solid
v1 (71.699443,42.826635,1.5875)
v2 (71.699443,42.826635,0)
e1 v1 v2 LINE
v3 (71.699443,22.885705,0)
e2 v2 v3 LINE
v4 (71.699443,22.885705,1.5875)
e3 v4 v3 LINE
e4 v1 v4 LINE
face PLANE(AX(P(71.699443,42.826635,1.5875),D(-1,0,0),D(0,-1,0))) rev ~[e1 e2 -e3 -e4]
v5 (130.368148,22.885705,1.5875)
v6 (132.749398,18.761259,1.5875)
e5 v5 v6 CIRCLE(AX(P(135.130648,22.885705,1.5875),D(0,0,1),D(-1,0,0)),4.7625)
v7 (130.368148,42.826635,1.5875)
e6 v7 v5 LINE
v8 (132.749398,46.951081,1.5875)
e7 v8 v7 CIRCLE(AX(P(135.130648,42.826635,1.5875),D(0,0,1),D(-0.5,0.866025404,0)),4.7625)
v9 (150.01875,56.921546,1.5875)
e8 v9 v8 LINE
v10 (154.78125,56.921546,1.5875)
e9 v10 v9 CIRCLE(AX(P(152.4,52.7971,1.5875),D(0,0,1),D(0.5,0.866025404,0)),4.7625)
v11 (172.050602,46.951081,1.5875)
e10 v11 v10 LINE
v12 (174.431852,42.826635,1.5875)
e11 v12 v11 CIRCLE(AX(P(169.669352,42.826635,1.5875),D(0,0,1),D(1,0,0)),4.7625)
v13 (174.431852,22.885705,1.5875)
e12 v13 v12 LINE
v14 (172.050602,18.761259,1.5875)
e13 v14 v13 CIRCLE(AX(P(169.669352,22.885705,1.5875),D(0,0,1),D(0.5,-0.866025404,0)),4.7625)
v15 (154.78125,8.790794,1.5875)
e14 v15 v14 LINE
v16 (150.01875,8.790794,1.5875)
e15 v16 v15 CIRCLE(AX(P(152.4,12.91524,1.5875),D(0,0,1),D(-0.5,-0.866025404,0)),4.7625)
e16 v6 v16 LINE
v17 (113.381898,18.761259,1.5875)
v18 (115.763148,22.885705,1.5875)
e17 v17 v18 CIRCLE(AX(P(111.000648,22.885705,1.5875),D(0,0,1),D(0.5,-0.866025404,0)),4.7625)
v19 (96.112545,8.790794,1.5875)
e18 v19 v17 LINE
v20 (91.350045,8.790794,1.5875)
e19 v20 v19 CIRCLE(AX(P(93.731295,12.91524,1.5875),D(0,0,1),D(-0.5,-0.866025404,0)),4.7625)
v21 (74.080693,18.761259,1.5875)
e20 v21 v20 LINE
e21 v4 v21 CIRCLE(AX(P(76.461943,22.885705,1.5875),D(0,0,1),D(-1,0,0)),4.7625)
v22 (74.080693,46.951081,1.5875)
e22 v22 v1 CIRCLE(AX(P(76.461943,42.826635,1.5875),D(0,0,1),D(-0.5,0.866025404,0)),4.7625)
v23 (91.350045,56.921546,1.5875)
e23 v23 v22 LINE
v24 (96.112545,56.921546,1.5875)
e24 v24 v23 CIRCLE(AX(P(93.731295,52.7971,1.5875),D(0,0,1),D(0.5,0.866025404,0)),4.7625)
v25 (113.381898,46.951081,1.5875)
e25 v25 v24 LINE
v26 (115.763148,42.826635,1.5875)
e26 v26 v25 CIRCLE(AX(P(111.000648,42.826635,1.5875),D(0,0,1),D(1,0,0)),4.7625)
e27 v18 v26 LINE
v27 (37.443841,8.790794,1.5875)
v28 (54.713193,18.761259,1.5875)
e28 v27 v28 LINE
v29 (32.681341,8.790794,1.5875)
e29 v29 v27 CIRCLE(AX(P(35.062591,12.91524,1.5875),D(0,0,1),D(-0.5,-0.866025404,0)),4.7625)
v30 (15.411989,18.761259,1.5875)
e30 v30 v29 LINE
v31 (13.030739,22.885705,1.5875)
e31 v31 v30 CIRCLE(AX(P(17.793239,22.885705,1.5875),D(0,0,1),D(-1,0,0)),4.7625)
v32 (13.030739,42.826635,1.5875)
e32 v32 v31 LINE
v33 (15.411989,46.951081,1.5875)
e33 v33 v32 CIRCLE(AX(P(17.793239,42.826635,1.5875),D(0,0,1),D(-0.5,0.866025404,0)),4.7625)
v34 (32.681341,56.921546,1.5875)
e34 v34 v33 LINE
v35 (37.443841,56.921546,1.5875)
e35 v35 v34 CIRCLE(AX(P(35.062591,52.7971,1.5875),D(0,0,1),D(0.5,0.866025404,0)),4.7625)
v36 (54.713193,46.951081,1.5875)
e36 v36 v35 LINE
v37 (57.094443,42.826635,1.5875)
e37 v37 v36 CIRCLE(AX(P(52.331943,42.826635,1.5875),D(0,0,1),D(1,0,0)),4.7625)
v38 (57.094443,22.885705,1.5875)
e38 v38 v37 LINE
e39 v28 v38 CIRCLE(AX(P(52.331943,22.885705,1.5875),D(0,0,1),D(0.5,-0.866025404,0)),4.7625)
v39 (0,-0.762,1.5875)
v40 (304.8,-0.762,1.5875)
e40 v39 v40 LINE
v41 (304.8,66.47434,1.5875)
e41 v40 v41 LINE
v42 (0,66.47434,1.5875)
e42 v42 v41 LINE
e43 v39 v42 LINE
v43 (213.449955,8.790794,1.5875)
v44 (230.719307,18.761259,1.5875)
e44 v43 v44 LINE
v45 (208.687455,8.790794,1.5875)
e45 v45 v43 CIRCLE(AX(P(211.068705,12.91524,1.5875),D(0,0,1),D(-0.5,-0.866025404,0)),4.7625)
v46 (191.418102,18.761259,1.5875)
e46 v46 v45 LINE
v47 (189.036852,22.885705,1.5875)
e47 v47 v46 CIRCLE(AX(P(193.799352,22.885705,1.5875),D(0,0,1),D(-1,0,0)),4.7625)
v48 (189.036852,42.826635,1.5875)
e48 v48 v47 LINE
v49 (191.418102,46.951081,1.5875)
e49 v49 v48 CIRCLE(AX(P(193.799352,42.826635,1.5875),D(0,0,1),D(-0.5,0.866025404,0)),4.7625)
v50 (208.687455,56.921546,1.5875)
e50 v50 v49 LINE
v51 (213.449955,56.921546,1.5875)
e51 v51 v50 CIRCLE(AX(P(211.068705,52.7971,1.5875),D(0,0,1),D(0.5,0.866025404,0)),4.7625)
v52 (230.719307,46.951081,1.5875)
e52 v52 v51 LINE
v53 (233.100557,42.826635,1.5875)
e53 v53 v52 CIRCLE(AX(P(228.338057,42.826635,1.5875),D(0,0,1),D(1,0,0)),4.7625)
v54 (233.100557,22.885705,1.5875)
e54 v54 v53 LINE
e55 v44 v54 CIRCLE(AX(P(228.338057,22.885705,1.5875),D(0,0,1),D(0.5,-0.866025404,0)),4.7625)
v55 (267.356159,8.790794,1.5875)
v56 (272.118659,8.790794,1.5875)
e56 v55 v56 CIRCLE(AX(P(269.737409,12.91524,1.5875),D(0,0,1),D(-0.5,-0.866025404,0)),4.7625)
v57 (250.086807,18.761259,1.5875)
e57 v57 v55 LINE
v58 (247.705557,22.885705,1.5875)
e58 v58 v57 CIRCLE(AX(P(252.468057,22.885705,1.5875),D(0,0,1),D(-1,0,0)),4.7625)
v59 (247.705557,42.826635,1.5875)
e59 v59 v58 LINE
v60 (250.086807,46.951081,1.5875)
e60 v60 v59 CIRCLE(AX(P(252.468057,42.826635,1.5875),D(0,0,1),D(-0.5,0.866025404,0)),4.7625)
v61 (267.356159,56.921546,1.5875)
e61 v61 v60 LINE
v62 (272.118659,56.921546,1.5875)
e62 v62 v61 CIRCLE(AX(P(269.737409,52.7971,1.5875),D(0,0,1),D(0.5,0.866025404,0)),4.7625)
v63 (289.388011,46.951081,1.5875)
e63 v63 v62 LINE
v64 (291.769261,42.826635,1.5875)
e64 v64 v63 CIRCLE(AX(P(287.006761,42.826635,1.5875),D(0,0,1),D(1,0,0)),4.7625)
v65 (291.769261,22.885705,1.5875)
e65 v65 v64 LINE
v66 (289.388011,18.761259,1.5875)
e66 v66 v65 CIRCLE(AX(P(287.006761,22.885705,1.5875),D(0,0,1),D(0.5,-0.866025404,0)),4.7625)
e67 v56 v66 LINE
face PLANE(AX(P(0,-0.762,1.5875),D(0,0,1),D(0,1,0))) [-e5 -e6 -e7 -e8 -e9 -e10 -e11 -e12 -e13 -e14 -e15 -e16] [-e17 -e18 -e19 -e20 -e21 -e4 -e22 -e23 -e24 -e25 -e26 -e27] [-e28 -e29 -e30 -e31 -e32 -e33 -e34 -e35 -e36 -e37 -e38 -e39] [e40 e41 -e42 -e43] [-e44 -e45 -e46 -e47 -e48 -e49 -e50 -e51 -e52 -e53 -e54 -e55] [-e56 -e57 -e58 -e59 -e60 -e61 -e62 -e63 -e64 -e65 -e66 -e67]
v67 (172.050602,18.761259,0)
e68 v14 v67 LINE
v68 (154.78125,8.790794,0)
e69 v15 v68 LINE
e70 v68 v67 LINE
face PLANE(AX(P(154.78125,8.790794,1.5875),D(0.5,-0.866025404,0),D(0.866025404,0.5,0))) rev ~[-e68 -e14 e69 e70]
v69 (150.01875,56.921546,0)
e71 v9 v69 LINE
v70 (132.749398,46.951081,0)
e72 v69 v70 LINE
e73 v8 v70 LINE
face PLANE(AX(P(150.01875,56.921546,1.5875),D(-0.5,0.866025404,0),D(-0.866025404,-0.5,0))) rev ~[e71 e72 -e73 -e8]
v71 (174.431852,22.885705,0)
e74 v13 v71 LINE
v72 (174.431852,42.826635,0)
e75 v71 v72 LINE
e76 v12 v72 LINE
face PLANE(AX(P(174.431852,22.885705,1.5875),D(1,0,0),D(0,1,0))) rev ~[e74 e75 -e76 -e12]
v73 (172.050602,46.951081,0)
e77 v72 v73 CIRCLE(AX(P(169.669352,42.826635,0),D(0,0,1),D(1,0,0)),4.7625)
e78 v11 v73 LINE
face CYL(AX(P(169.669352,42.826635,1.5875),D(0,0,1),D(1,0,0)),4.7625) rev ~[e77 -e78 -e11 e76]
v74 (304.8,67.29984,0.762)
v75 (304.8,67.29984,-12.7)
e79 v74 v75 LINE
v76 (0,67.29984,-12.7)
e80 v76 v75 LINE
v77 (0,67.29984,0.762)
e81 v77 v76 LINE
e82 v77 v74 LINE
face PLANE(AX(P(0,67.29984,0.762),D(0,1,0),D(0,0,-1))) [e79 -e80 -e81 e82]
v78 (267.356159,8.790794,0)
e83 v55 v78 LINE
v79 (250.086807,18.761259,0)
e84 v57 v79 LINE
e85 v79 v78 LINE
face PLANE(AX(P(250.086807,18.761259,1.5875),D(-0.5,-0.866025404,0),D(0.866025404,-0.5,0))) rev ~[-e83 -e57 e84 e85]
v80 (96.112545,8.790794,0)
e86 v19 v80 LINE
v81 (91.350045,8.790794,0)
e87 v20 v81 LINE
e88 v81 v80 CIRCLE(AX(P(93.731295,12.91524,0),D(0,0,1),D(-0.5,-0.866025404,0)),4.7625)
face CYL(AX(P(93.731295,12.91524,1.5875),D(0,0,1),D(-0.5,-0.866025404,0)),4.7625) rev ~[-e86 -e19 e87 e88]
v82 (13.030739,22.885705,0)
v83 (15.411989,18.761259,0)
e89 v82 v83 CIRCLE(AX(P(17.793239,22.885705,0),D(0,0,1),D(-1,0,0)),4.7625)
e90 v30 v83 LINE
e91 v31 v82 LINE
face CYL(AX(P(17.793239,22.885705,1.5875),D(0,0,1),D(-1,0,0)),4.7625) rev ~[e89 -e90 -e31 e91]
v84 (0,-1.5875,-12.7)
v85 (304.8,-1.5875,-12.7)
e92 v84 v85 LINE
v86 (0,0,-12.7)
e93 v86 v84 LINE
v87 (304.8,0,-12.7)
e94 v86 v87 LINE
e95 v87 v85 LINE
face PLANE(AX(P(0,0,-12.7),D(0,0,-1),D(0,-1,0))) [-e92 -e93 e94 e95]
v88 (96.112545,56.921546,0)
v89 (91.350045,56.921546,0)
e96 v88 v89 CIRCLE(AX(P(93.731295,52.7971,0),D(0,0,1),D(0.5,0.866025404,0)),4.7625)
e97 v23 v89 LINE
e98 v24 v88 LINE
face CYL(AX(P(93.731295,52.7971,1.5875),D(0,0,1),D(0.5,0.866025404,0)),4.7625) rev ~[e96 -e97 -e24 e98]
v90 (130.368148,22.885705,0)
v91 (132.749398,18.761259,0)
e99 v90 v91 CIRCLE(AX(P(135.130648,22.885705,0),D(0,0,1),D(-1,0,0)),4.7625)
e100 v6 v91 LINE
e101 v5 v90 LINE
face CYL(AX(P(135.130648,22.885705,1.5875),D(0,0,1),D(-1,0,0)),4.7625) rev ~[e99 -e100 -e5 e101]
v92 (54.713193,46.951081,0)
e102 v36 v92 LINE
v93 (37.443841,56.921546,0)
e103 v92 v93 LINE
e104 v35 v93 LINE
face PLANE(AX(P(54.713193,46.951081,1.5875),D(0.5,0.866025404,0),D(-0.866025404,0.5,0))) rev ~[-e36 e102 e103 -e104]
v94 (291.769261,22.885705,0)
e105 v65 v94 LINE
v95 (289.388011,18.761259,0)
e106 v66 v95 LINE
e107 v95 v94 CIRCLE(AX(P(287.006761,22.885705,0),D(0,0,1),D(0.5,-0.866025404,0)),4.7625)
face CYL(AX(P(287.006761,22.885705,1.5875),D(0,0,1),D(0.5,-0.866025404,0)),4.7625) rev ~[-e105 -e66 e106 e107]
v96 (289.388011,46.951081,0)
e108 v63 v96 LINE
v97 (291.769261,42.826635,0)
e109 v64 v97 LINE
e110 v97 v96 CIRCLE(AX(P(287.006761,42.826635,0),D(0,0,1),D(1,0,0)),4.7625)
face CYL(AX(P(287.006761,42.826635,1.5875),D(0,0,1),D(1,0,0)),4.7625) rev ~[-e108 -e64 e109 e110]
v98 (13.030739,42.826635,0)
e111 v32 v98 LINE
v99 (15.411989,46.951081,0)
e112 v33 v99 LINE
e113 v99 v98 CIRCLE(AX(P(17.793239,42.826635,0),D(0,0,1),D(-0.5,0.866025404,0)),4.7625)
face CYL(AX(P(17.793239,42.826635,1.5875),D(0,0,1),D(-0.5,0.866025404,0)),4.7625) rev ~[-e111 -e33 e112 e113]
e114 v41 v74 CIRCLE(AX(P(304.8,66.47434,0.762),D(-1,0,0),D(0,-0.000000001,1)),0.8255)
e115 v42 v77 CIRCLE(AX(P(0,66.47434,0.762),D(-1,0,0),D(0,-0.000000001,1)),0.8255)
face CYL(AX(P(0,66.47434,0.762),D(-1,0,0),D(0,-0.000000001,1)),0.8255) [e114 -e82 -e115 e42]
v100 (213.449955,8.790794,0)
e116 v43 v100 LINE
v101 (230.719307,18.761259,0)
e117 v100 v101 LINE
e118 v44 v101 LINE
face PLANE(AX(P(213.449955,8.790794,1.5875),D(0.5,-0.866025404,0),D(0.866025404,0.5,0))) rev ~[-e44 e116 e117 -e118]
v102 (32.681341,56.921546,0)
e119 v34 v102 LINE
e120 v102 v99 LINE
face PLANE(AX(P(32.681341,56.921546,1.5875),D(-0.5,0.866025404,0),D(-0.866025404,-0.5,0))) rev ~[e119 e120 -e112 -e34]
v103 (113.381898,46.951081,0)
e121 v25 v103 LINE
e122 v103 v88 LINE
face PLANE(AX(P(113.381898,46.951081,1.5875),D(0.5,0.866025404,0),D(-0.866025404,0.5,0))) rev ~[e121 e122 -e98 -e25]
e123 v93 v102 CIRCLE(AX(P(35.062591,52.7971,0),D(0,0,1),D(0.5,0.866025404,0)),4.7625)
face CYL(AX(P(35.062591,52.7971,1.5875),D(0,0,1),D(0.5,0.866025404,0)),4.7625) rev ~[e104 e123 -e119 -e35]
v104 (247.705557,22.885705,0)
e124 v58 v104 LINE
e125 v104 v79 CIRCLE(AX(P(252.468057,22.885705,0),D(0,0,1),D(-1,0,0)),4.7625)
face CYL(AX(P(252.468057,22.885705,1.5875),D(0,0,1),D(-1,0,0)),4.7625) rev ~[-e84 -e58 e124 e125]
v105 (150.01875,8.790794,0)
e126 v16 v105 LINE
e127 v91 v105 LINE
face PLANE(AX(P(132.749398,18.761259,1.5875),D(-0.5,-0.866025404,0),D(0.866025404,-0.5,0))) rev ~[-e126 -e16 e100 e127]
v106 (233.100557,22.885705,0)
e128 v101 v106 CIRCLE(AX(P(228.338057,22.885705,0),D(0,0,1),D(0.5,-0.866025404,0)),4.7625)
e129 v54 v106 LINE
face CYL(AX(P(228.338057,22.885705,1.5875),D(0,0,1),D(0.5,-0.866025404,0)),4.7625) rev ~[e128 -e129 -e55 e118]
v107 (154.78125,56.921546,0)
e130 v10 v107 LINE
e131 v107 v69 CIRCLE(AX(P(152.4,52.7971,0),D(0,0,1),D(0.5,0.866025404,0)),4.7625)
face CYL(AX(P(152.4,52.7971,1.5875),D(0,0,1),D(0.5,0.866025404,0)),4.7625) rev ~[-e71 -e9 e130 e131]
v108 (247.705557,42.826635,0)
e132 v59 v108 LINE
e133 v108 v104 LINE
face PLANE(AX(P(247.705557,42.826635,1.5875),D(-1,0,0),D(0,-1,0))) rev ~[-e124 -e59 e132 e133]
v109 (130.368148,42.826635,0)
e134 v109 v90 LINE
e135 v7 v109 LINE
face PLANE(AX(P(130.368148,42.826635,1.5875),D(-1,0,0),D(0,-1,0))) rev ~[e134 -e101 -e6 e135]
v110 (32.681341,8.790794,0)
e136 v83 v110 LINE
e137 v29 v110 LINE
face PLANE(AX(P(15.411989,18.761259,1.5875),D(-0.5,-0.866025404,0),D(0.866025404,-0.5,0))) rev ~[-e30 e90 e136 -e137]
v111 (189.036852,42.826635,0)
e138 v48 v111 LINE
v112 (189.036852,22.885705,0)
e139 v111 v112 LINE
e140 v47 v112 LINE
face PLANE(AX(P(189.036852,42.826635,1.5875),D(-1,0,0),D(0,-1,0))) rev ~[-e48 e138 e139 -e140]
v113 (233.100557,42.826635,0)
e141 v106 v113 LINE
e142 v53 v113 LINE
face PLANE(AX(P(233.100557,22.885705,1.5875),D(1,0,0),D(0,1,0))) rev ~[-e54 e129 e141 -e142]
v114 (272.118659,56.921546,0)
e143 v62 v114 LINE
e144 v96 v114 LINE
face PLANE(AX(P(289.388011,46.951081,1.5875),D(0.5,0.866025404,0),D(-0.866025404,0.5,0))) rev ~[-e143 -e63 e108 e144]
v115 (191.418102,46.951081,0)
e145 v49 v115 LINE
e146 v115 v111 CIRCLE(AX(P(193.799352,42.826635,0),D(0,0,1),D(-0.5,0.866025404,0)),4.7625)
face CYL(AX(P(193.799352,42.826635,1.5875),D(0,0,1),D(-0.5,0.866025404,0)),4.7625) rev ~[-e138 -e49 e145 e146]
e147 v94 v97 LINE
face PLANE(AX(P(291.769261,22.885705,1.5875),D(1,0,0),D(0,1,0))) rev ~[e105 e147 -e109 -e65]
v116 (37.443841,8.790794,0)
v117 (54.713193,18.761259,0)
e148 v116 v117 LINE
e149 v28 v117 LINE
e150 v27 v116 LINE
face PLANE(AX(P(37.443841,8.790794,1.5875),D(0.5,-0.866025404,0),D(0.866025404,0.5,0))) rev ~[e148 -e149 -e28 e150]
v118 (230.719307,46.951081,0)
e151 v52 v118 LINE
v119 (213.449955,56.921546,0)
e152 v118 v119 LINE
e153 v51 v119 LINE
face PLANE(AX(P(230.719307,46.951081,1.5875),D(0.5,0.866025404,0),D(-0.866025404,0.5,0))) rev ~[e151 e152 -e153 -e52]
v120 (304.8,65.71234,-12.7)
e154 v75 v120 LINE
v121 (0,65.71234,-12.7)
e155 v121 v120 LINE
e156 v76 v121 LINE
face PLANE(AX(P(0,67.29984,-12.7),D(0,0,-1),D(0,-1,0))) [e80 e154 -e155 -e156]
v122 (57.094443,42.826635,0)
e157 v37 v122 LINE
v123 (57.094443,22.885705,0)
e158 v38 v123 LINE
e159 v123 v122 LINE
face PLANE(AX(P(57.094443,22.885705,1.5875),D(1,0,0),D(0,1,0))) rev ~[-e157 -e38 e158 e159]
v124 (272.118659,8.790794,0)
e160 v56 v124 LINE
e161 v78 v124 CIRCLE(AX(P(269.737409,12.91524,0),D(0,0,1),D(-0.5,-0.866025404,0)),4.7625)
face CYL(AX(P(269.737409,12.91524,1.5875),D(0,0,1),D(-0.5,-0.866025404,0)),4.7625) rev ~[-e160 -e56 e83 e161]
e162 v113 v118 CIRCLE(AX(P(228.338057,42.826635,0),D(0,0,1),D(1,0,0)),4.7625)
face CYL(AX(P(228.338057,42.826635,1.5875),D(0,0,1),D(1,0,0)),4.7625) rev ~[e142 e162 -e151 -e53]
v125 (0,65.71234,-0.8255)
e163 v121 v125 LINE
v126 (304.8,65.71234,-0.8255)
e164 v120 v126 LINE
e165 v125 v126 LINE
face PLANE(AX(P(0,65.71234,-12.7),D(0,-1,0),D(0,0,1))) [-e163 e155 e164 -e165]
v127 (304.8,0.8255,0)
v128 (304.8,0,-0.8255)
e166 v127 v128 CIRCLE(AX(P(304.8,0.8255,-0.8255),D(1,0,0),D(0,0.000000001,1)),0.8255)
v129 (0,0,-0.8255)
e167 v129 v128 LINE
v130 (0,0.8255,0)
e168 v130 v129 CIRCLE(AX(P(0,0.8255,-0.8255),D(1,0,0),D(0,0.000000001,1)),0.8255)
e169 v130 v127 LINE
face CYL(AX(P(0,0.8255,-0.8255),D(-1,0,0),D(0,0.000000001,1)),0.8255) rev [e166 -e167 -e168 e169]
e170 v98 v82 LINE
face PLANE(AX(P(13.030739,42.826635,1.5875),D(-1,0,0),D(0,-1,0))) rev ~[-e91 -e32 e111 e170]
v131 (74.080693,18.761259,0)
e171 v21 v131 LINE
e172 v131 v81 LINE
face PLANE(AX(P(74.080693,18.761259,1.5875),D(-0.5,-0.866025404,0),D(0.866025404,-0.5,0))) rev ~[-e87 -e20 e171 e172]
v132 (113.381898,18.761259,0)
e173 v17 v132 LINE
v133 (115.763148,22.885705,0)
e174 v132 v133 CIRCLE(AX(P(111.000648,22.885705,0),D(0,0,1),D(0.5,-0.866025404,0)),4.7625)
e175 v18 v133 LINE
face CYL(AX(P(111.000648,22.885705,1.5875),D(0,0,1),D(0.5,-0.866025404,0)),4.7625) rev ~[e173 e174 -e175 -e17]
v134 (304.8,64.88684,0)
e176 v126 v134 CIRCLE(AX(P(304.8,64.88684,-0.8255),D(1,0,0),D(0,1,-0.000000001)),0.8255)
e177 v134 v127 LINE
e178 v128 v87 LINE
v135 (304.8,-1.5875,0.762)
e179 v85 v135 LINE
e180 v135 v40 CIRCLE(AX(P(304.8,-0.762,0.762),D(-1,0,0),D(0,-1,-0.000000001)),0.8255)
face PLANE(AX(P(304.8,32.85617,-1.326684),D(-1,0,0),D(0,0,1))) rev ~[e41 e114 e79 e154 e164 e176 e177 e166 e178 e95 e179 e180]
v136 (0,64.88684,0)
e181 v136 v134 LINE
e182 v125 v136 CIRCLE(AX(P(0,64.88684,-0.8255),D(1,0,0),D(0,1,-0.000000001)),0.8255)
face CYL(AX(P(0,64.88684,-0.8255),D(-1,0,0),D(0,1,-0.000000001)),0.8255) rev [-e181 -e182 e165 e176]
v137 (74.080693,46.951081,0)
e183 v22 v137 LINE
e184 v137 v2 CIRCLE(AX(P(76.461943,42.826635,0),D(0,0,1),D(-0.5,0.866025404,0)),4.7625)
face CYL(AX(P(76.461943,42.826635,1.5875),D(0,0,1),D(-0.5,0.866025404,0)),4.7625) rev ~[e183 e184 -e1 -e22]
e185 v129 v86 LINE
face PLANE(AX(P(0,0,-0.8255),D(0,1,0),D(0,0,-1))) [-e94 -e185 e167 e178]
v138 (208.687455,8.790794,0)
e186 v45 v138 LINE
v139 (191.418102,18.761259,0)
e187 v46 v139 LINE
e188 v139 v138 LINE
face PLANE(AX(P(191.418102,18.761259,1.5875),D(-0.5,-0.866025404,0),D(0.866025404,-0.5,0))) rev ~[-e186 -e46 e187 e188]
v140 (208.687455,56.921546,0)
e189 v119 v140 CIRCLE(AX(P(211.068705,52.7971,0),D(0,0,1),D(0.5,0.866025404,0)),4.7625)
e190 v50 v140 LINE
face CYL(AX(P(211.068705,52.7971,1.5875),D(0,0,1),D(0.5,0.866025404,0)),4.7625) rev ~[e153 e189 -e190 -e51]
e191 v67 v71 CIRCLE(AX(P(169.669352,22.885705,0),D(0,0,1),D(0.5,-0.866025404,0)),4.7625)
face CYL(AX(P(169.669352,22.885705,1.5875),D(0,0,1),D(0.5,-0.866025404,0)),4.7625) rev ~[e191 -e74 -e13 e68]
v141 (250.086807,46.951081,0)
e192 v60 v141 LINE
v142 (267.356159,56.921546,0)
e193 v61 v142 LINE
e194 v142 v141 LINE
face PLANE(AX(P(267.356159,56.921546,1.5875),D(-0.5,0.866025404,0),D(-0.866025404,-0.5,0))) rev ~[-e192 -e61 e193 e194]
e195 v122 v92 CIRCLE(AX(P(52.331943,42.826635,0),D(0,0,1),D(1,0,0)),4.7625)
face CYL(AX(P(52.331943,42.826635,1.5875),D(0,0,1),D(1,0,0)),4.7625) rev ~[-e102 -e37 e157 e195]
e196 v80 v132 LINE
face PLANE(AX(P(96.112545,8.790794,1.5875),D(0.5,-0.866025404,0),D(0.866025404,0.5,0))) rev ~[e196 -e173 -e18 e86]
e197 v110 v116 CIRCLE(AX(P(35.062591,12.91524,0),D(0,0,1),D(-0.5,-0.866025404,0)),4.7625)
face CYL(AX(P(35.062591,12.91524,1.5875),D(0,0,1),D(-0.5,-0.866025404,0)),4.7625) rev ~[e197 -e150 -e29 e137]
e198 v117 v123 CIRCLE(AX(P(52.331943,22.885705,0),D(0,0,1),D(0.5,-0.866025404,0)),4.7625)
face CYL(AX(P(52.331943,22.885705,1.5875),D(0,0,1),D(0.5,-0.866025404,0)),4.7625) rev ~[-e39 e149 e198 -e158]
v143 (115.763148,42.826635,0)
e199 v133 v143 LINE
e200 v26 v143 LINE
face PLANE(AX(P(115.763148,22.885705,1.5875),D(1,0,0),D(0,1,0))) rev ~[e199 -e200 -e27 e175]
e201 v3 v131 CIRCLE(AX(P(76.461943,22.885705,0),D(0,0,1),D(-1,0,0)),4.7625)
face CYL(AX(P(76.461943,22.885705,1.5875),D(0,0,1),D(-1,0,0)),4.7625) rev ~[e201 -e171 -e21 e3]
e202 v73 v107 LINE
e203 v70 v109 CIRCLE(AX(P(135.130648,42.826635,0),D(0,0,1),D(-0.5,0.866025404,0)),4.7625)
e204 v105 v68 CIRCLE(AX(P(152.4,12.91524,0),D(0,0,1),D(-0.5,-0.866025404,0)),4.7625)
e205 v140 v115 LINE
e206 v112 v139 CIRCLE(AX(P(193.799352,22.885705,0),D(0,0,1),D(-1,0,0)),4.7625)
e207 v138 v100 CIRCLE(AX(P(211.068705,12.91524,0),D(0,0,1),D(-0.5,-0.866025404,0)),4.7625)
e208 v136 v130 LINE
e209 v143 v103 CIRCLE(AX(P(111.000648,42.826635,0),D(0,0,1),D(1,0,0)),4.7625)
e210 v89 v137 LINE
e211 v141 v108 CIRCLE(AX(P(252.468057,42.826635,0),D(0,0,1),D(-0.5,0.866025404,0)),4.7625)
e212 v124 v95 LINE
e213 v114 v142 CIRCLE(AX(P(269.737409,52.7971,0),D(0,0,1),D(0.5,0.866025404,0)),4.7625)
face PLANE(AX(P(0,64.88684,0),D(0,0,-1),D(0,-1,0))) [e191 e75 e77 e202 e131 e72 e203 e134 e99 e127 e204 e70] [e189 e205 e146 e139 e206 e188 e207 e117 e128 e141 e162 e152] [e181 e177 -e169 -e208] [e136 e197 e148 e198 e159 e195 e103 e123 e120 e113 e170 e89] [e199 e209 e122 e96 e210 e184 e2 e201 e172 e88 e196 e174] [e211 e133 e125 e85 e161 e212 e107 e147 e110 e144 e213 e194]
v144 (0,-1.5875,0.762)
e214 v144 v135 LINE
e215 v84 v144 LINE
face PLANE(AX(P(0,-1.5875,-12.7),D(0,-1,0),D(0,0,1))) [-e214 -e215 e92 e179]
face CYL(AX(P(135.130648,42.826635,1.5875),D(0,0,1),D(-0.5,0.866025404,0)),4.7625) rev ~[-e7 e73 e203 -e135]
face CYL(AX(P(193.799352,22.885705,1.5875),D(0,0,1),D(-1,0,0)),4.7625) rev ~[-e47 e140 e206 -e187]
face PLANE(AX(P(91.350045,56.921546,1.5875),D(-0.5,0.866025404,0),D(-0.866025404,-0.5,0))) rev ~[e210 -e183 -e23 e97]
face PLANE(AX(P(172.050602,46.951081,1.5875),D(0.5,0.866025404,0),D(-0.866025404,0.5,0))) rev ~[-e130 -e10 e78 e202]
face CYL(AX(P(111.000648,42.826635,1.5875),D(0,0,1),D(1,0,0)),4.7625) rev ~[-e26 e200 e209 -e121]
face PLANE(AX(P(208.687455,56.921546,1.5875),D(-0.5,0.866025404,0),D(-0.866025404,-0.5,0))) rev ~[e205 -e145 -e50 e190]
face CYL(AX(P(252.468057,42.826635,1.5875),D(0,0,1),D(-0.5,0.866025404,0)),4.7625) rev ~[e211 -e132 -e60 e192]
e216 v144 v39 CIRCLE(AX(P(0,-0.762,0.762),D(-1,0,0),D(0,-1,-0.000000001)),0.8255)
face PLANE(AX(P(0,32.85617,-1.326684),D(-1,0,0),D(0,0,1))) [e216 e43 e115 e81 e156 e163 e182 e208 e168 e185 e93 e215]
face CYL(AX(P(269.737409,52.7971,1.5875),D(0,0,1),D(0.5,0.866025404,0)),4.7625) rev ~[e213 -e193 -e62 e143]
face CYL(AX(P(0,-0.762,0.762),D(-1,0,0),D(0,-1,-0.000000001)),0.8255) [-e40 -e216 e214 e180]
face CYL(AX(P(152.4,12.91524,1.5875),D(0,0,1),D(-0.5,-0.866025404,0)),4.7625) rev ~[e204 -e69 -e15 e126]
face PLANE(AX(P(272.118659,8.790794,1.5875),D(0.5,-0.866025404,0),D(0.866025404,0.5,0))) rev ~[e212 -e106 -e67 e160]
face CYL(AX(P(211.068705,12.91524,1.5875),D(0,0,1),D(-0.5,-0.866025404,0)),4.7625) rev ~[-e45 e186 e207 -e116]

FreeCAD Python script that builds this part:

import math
import FreeCAD as App
import Part
import Sketcher
Q = App.Units.Quantity

doc = App.newDocument("Part")
body = doc.addObject("PartDesign::Body", "Body")

# Sketch on YZ plane
sketch1 = body.newObject("Sketcher::SketchObject", "Sketch")
sketch1.AttachmentSupport = (doc.getObject("YZ_Plane"), [""])
sketch1.MapMode = "FlatFace"
sketch1.addGeometry([
    Part.LineSegment(App.Vector(67.3, -12.7, 0), App.Vector(67.3, 0.8, 0)),  # 0
    Part.ArcOfCircle(Part.Circle(App.Vector(66.5, 0.8, 0), App.Vector(0, 0, 1), 0.8), math.radians(0), math.radians(90)),  # 1
    Part.LineSegment(App.Vector(66.5, 1.6, 0), App.Vector(-0.8, 1.6, 0)),  # 2
    Part.ArcOfCircle(Part.Circle(App.Vector(-0.8, 0.8, 0), App.Vector(0, 0, 1), 0.8), math.radians(90), math.radians(180)),  # 3
    Part.LineSegment(App.Vector(-1.6, 0.8, 0), App.Vector(-1.6, -12.7, 0)),  # 4
    Part.LineSegment(App.Vector(-1.6, -12.7, 0), App.Vector(0, -12.7, 0)),  # 5
    Part.LineSegment(App.Vector(0, -12.7, 0), App.Vector(0, -0.8, 0)),  # 6
    Part.ArcOfCircle(Part.Circle(App.Vector(0.8, -0.8, 0), App.Vector(0, 0, 1), 0.8), math.radians(90), math.radians(180)),  # 7
    Part.LineSegment(App.Vector(0.8, 0, 0), App.Vector(64.9, 0, 0)),  # 8
    Part.ArcOfCircle(Part.Circle(App.Vector(64.9, -0.8, 0), App.Vector(0, 0, 1), 0.8), math.radians(0), math.radians(90)),  # 9
    Part.LineSegment(App.Vector(65.7, -0.8, 0), App.Vector(65.7, -12.7, 0)),  # 10
    Part.LineSegment(App.Vector(65.7, -12.7, 0), App.Vector(67.3, -12.7, 0)),  # 11
], False)
sketch1.addConstraint([
    Sketcher.Constraint("Tangent", 0, 2, 1, 1),
    Sketcher.Constraint("Tangent", 1, 2, 2, 1),
    Sketcher.Constraint("Tangent", 2, 2, 3, 1),
    Sketcher.Constraint("Tangent", 3, 2, 4, 1),
    Sketcher.Constraint("Coincident", 4, 2, 5, 1),
    Sketcher.Constraint("Coincident", 5, 2, 6, 1),
    Sketcher.Constraint("Tangent", 6, 2, 7, 2),
    Sketcher.Constraint("Tangent", 7, 1, 8, 1),
    Sketcher.Constraint("Tangent", 8, 2, 9, 2),
    Sketcher.Constraint("Tangent", 9, 1, 10, 1),
    Sketcher.Constraint("Coincident", 10, 2, 11, 1),
    Sketcher.Constraint("Coincident", 11, 2, 0, 1),
    Sketcher.Constraint("Vertical", 0),
    Sketcher.Constraint("Horizontal", 2),
    Sketcher.Constraint("Vertical", 4),
    Sketcher.Constraint("Horizontal", 5),
    Sketcher.Constraint("Vertical", 6),
    Sketcher.Constraint("Horizontal", 8),
    Sketcher.Constraint("Vertical", 10),
    Sketcher.Constraint("Horizontal", 11),
    Sketcher.Constraint("Equal", 1, 3),
    Sketcher.Constraint("Equal", 3, 7),
    Sketcher.Constraint("Equal", 7, 9),
    Sketcher.Constraint("PointOnObject", 5, 2, -2),
    Sketcher.Constraint("PointOnObject", 7, 1, -1),
    Sketcher.Constraint("Horizontal", 5, 2, 10, 2),
    Sketcher.Constraint("Equal", 5, 11),
    Sketcher.Constraint("DistanceY", 0, 1, 0, 2, Q("0.53 in")),
    Sketcher.Constraint("DistanceY", 4, 2, -1, 1, Q("0.5 in")),
    Sketcher.Constraint("Radius", 1, Q("0.0325 in")),
    Sketcher.Constraint("DistanceX", 5, 1, 5, 2, Q("0.0625 in")),
    Sketcher.Constraint("DistanceX", 2, 2, 2, 1, Q("2.6471 in")),
])
pad1 = body.newObject("PartDesign::Pad", "Pad")
pad1.Profile = sketch1
pad1.Length = Q("12 in")

# Sketch on XY plane
sketch2 = body.newObject("Sketcher::SketchObject", "Sketch001")
sketch2.AttachmentSupport = (doc.getObject("XY_Plane"), [""])
sketch2.MapMode = "FlatFace"
sketch2.AttachmentOffset = App.Placement(App.Vector(0, 0, 0.0625 * 25.4), App.Rotation())
sketch2.addGeometry([
    Part.LineSegment(App.Vector(32.7, 56.9, 0), App.Vector(15.4, 47, 0)),  # 0
    Part.ArcOfCircle(Part.Circle(App.Vector(17.8, 42.8, 0), App.Vector(0, 0, 1), 4.8), math.radians(120), math.radians(180)),  # 1
    Part.LineSegment(App.Vector(13, 42.8, 0), App.Vector(13, 22.9, 0)),  # 2
    Part.ArcOfCircle(Part.Circle(App.Vector(17.8, 22.9, 0), App.Vector(0, 0, 1), 4.8), math.radians(180), math.radians(240)),  # 3
    Part.LineSegment(App.Vector(15.4, 18.8, 0), App.Vector(32.7, 8.8, 0)),  # 4
    Part.ArcOfCircle(Part.Circle(App.Vector(35.1, 12.9, 0), App.Vector(0, 0, 1), 4.8), math.radians(-120), math.radians(-60)),  # 5
    Part.LineSegment(App.Vector(37.4, 8.8, 0), App.Vector(54.7, 18.8, 0)),  # 6
    Part.ArcOfCircle(Part.Circle(App.Vector(52.3, 22.9, 0), App.Vector(0, 0, 1), 4.8), math.radians(-60), math.radians(0)),  # 7
    Part.LineSegment(App.Vector(57.1, 22.9, 0), App.Vector(57.1, 42.8, 0)),  # 8
    Part.ArcOfCircle(Part.Circle(App.Vector(52.3, 42.8, 0), App.Vector(0, 0, 1), 4.8), math.radians(0), math.radians(60)),  # 9
    Part.LineSegment(App.Vector(54.7, 47, 0), App.Vector(37.4, 56.9, 0)),  # 10
    Part.ArcOfCircle(Part.Circle(App.Vector(35.1, 52.8, 0), App.Vector(0, 0, 1), 4.8), math.radians(60), math.radians(120)),  # 11
], False)
sketch2.addConstraint([
    Sketcher.Constraint("Tangent", 0, 2, 1, 1),
    Sketcher.Constraint("Tangent", 1, 2, 2, 1),
    Sketcher.Constraint("Tangent", 2, 2, 3, 1),
    Sketcher.Constraint("Tangent", 3, 2, 4, 1),
    Sketcher.Constraint("Tangent", 4, 2, 5, 1),
    Sketcher.Constraint("Tangent", 5, 2, 6, 1),
    Sketcher.Constraint("Tangent", 6, 2, 7, 1),
    Sketcher.Constraint("Tangent", 7, 2, 8, 1),
    Sketcher.Constraint("Tangent", 8, 2, 9, 1),
    Sketcher.Constraint("Tangent", 9, 2, 10, 1),
    Sketcher.Constraint("Tangent", 10, 2, 11, 1),
    Sketcher.Constraint("Tangent", 11, 2, 0, 1),
    Sketcher.Constraint("Vertical", 2),
    Sketcher.Constraint("Vertical", 8),
    Sketcher.Constraint("Equal", 1, 3),
    Sketcher.Constraint("Equal", 3, 5),
    Sketcher.Constraint("Equal", 5, 7),
    Sketcher.Constraint("Equal", 7, 9),
    Sketcher.Constraint("Equal", 9, 11),
    Sketcher.Constraint("Parallel", 0, 6),
    Sketcher.Constraint("Parallel", 4, 10),
    Sketcher.Constraint("Horizontal", 3, 3, 7, 3),
    Sketcher.Constraint("Horizontal", 1, 3, 9, 3),
    Sketcher.Constraint("Horizontal", 4, 2, 5, 2),
    Sketcher.Constraint("Angle", 0, Q("-150 deg")),
    Sketcher.Constraint("Radius", 1, Q("0.1875 in")),
    Sketcher.Constraint("DistanceY", 2, 2, 2, 1, 19.94093),
    Sketcher.Constraint("DistanceY", -1, 1, 11, 3, 52.7971),
    Sketcher.Constraint("Distance", 0, 19.94093),
    Sketcher.Constraint("DistanceX", -1, 1, 1, 3, 17.793239),
])
pocket1 = body.newObject("PartDesign::Pocket", "Pocket")
pocket1.Profile = sketch2
pocket1.Type = "UpToFirst"

# Sketch on XY plane
sketch3 = body.newObject("Sketcher::SketchObject", "Sketch002")
sketch3.AttachmentSupport = (doc.getObject("XY_Plane"), [""])
sketch3.MapMode = "FlatFace"
sketch3.AttachmentOffset = App.Placement(App.Vector(0, 0, 0.0625 * 25.4), App.Rotation())
sketch3.addGeometry([
    Part.LineSegment(App.Vector(91.4, 56.9, 0), App.Vector(74.1, 47, 0)),  # 0
    Part.ArcOfCircle(Part.Circle(App.Vector(76.5, 42.8, 0), App.Vector(0, 0, 1), 4.8), math.radians(120), math.radians(180)),  # 1
    Part.LineSegment(App.Vector(71.7, 42.8, 0), App.Vector(71.7, 22.9, 0)),  # 2
    Part.ArcOfCircle(Part.Circle(App.Vector(76.5, 22.9, 0), App.Vector(0, 0, 1), 4.8), math.radians(180), math.radians(240)),  # 3
    Part.LineSegment(App.Vector(74.1, 18.8, 0), App.Vector(91.4, 8.8, 0)),  # 4
    Part.ArcOfCircle(Part.Circle(App.Vector(93.7, 12.9, 0), App.Vector(0, 0, 1), 4.8), math.radians(-120), math.radians(-60)),  # 5
    Part.LineSegment(App.Vector(96.1, 8.8, 0), App.Vector(113.4, 18.8, 0)),  # 6
    Part.ArcOfCircle(Part.Circle(App.Vector(111, 22.9, 0), App.Vector(0, 0, 1), 4.8), math.radians(-60), math.radians(0)),  # 7
    Part.LineSegment(App.Vector(115.8, 22.9, 0), App.Vector(115.8, 42.8, 0)),  # 8
    Part.ArcOfCircle(Part.Circle(App.Vector(111, 42.8, 0), App.Vector(0, 0, 1), 4.8), math.radians(0), math.radians(60)),  # 9
    Part.LineSegment(App.Vector(113.4, 47, 0), App.Vector(96.1, 56.9, 0)),  # 10
    Part.ArcOfCircle(Part.Circle(App.Vector(93.7, 52.8, 0), App.Vector(0, 0, 1), 4.8), math.radians(60), math.radians(120)),  # 11
], False)
sketch3.addConstraint([
    Sketcher.Constraint("Tangent", 0, 2, 1, 1),
    Sketcher.Constraint("Tangent", 1, 2, 2, 1),
    Sketcher.Constraint("Tangent", 2, 2, 3, 1),
    Sketcher.Constraint("Tangent", 3, 2, 4, 1),
    Sketcher.Constraint("Tangent", 4, 2, 5, 1),
    Sketcher.Constraint("Tangent", 5, 2, 6, 1),
    Sketcher.Constraint("Tangent", 6, 2, 7, 1),
    Sketcher.Constraint("Tangent", 7, 2, 8, 1),
    Sketcher.Constraint("Tangent", 8, 2, 9, 1),
    Sketcher.Constraint("Tangent", 9, 2, 10, 1),
    Sketcher.Constraint("Tangent", 10, 2, 11, 1),
    Sketcher.Constraint("Tangent", 11, 2, 0, 1),
    Sketcher.Constraint("Vertical", 2),
    Sketcher.Constraint("Vertical", 8),
    Sketcher.Constraint("Equal", 1, 3),
    Sketcher.Constraint("Equal", 3, 5),
    Sketcher.Constraint("Equal", 5, 7),
    Sketcher.Constraint("Equal", 7, 9),
    Sketcher.Constraint("Equal", 9, 11),
    Sketcher.Constraint("Parallel", 0, 6),
    Sketcher.Constraint("Parallel", 4, 10),
    Sketcher.Constraint("Horizontal", 3, 3, 7, 3),
    Sketcher.Constraint("Horizontal", 1, 3, 9, 3),
    Sketcher.Constraint("Horizontal", 4, 2, 5, 2),
    Sketcher.Constraint("Angle", 0, Q("-150 deg")),
    Sketcher.Constraint("Radius", 1, Q("0.1875 in")),
    Sketcher.Constraint("DistanceY", 2, 2, 2, 1, 19.94093),
    Sketcher.Constraint("DistanceY", -1, 1, 11, 3, 52.7971),
    Sketcher.Constraint("Distance", 0, 19.94093),
    Sketcher.Constraint("DistanceX", -1, 1, 1, 3, 76.461943),
])
pocket2 = body.newObject("PartDesign::Pocket", "Pocket001")
pocket2.Profile = sketch3
pocket2.Type = "UpToFirst"

# Sketch on XY plane
sketch4 = body.newObject("Sketcher::SketchObject", "Sketch003")
sketch4.AttachmentSupport = (doc.getObject("XY_Plane"), [""])
sketch4.MapMode = "FlatFace"
sketch4.AttachmentOffset = App.Placement(App.Vector(0, 0, 0.0625 * 25.4), App.Rotation())
sketch4.addGeometry([
    Part.LineSegment(App.Vector(150, 56.9, 0), App.Vector(132.7, 47, 0)),  # 0
    Part.ArcOfCircle(Part.Circle(App.Vector(135.1, 42.8, 0), App.Vector(0, 0, 1), 4.8), math.radians(120), math.radians(180)),  # 1
    Part.LineSegment(App.Vector(130.4, 42.8, 0), App.Vector(130.4, 22.9, 0)),  # 2
    Part.ArcOfCircle(Part.Circle(App.Vector(135.1, 22.9, 0), App.Vector(0, 0, 1), 4.8), math.radians(180), math.radians(240)),  # 3
    Part.LineSegment(App.Vector(132.7, 18.8, 0), App.Vector(150, 8.8, 0)),  # 4
    Part.ArcOfCircle(Part.Circle(App.Vector(152.4, 12.9, 0), App.Vector(0, 0, 1), 4.8), math.radians(-120), math.radians(-60)),  # 5
    Part.LineSegment(App.Vector(154.8, 8.8, 0), App.Vector(172.1, 18.8, 0)),  # 6
    Part.ArcOfCircle(Part.Circle(App.Vector(169.7, 22.9, 0), App.Vector(0, 0, 1), 4.8), math.radians(-60), math.radians(0)),  # 7
    Part.LineSegment(App.Vector(174.4, 22.9, 0), App.Vector(174.4, 42.8, 0)),  # 8
    Part.ArcOfCircle(Part.Circle(App.Vector(169.7, 42.8, 0), App.Vector(0, 0, 1), 4.8), math.radians(0), math.radians(60)),  # 9
    Part.LineSegment(App.Vector(172.1, 47, 0), App.Vector(154.8, 56.9, 0)),  # 10
    Part.ArcOfCircle(Part.Circle(App.Vector(152.4, 52.8, 0), App.Vector(0, 0, 1), 4.8), math.radians(60), math.radians(120)),  # 11
], False)
sketch4.addConstraint([
    Sketcher.Constraint("Tangent", 0, 2, 1, 1),
    Sketcher.Constraint("Tangent", 1, 2, 2, 1),
    Sketcher.Constraint("Tangent", 2, 2, 3, 1),
    Sketcher.Constraint("Tangent", 3, 2, 4, 1),
    Sketcher.Constraint("Tangent", 4, 2, 5, 1),
    Sketcher.Constraint("Tangent", 5, 2, 6, 1),
    Sketcher.Constraint("Tangent", 6, 2, 7, 1),
    Sketcher.Constraint("Tangent", 7, 2, 8, 1),
    Sketcher.Constraint("Tangent", 8, 2, 9, 1),
    Sketcher.Constraint("Tangent", 9, 2, 10, 1),
    Sketcher.Constraint("Tangent", 10, 2, 11, 1),
    Sketcher.Constraint("Tangent", 11, 2, 0, 1),
    Sketcher.Constraint("Vertical", 2),
    Sketcher.Constraint("Vertical", 8),
    Sketcher.Constraint("Equal", 1, 3),
    Sketcher.Constraint("Equal", 3, 5),
    Sketcher.Constraint("Equal", 5, 7),
    Sketcher.Constraint("Equal", 7, 9),
    Sketcher.Constraint("Equal", 9, 11),
    Sketcher.Constraint("Parallel", 0, 6),
    Sketcher.Constraint("Parallel", 4, 10),
    Sketcher.Constraint("Horizontal", 3, 3, 7, 3),
    Sketcher.Constraint("Horizontal", 1, 3, 9, 3),
    Sketcher.Constraint("Horizontal", 4, 2, 5, 2),
    Sketcher.Constraint("DistanceX", -1, 1, 5, 3, Q("6 in")),
    Sketcher.Constraint("Angle", 0, Q("-150 deg")),
    Sketcher.Constraint("Radius", 1, Q("0.1875 in")),
    Sketcher.Constraint("DistanceY", 2, 2, 2, 1, 19.94093),
    Sketcher.Constraint("DistanceY", -1, 1, 11, 3, 52.7971),
    Sketcher.Constraint("Distance", 0, 19.94093),
])
pocket3 = body.newObject("PartDesign::Pocket", "Pocket002")
pocket3.Profile = sketch4
pocket3.Type = "UpToFirst"

# Sketch on XY plane
sketch5 = body.newObject("Sketcher::SketchObject", "Sketch004")
sketch5.AttachmentSupport = (doc.getObject("XY_Plane"), [""])
sketch5.MapMode = "FlatFace"
sketch5.AttachmentOffset = App.Placement(App.Vector(0, 0, 0.0625 * 25.4), App.Rotation())
sketch5.addGeometry([
    Part.LineSegment(App.Vector(208.7, 56.9, 0), App.Vector(191.4, 47, 0)),  # 0
    Part.ArcOfCircle(Part.Circle(App.Vector(193.8, 42.8, 0), App.Vector(0, 0, 1), 4.8), math.radians(120), math.radians(180)),  # 1
    Part.LineSegment(App.Vector(189, 42.8, 0), App.Vector(189, 22.9, 0)),  # 2
    Part.ArcOfCircle(Part.Circle(App.Vector(193.8, 22.9, 0), App.Vector(0, 0, 1), 4.8), math.radians(-180), math.radians(-120)),  # 3
    Part.LineSegment(App.Vector(191.4, 18.8, 0), App.Vector(208.7, 8.8, 0)),  # 4
    Part.ArcOfCircle(Part.Circle(App.Vector(211.1, 12.9, 0), App.Vector(0, 0, 1), 4.8), math.radians(-120), math.radians(-60)),  # 5
    Part.LineSegment(App.Vector(213.4, 8.8, 0), App.Vector(230.7, 18.8, 0)),  # 6
    Part.ArcOfCircle(Part.Circle(App.Vector(228.3, 22.9, 0), App.Vector(0, 0, 1), 4.8), math.radians(-60), math.radians(0)),  # 7
    Part.LineSegment(App.Vector(233.1, 22.9, 0), App.Vector(233.1, 42.8, 0)),  # 8
    Part.ArcOfCircle(Part.Circle(App.Vector(228.3, 42.8, 0), App.Vector(0, 0, 1), 4.8), math.radians(0), math.radians(60)),  # 9
    Part.LineSegment(App.Vector(230.7, 47, 0), App.Vector(213.4, 56.9, 0)),  # 10
    Part.ArcOfCircle(Part.Circle(App.Vector(211.1, 52.8, 0), App.Vector(0, 0, 1), 4.8), math.radians(60), math.radians(120)),  # 11
], False)
sketch5.addConstraint([
    Sketcher.Constraint("Tangent", 0, 2, 1, 1),
    Sketcher.Constraint("Tangent", 1, 2, 2, 1),
    Sketcher.Constraint("Tangent", 2, 2, 3, 1),
    Sketcher.Constraint("Tangent", 3, 2, 4, 1),
    Sketcher.Constraint("Tangent", 4, 2, 5, 1),
    Sketcher.Constraint("Tangent", 5, 2, 6, 1),
    Sketcher.Constraint("Tangent", 6, 2, 7, 1),
    Sketcher.Constraint("Tangent", 7, 2, 8, 1),
    Sketcher.Constraint("Tangent", 8, 2, 9, 1),
    Sketcher.Constraint("Tangent", 9, 2, 10, 1),
    Sketcher.Constraint("Tangent", 10, 2, 11, 1),
    Sketcher.Constraint("Tangent", 11, 2, 0, 1),
    Sketcher.Constraint("Vertical", 2),
    Sketcher.Constraint("Vertical", 8),
    Sketcher.Constraint("Equal", 1, 3),
    Sketcher.Constraint("Equal", 3, 5),
    Sketcher.Constraint("Equal", 5, 7),
    Sketcher.Constraint("Equal", 7, 9),
    Sketcher.Constraint("Equal", 9, 11),
    Sketcher.Constraint("Parallel", 0, 6),
    Sketcher.Constraint("Parallel", 4, 10),
    Sketcher.Constraint("Horizontal", 3, 3, 7, 3),
    Sketcher.Constraint("Horizontal", 1, 3, 9, 3),
    Sketcher.Constraint("Horizontal", 4, 2, 5, 2),
    Sketcher.Constraint("Angle", 0, Q("-150 deg")),
    Sketcher.Constraint("Radius", 1, Q("0.1875 in")),
    Sketcher.Constraint("DistanceY", 2, 2, 2, 1, 19.94093),
    Sketcher.Constraint("DistanceY", -1, 1, 11, 3, 52.7971),
    Sketcher.Constraint("Distance", 0, 19.94093),
    Sketcher.Constraint("DistanceX", -1, 1, 1, 3, 193.799352),
])
pocket4 = body.newObject("PartDesign::Pocket", "Pocket003")
pocket4.Profile = sketch5
pocket4.Type = "UpToFirst"

# Sketch on XY plane
sketch6 = body.newObject("Sketcher::SketchObject", "Sketch005")
sketch6.AttachmentSupport = (doc.getObject("XY_Plane"), [""])
sketch6.MapMode = "FlatFace"
sketch6.AttachmentOffset = App.Placement(App.Vector(0, 0, 0.0625 * 25.4), App.Rotation())
sketch6.addGeometry([
    Part.LineSegment(App.Vector(267.4, 56.9, 0), App.Vector(250.1, 47, 0)),  # 0
    Part.ArcOfCircle(Part.Circle(App.Vector(252.5, 42.8, 0), App.Vector(0, 0, 1), 4.8), math.radians(120), math.radians(180)),  # 1
    Part.LineSegment(App.Vector(247.7, 42.8, 0), App.Vector(247.7, 22.9, 0)),  # 2
    Part.ArcOfCircle(Part.Circle(App.Vector(252.5, 22.9, 0), App.Vector(0, 0, 1), 4.8), math.radians(-180), math.radians(-120)),  # 3
    Part.LineSegment(App.Vector(250.1, 18.8, 0), App.Vector(267.4, 8.8, 0)),  # 4
    Part.ArcOfCircle(Part.Circle(App.Vector(269.7, 12.9, 0), App.Vector(0, 0, 1), 4.8), math.radians(-120), math.radians(-60)),  # 5
    Part.LineSegment(App.Vector(272.1, 8.8, 0), App.Vector(289.4, 18.8, 0)),  # 6
    Part.ArcOfCircle(Part.Circle(App.Vector(287, 22.9, 0), App.Vector(0, 0, 1), 4.8), math.radians(-60), math.radians(0)),  # 7
    Part.LineSegment(App.Vector(291.8, 22.9, 0), App.Vector(291.8, 42.8, 0)),  # 8
    Part.ArcOfCircle(Part.Circle(App.Vector(287, 42.8, 0), App.Vector(0, 0, 1), 4.8), math.radians(0), math.radians(60)),  # 9
    Part.LineSegment(App.Vector(289.4, 47, 0), App.Vector(272.1, 56.9, 0)),  # 10
    Part.ArcOfCircle(Part.Circle(App.Vector(269.7, 52.8, 0), App.Vector(0, 0, 1), 4.8), math.radians(60), math.radians(120)),  # 11
], False)
sketch6.addConstraint([
    Sketcher.Constraint("Tangent", 0, 2, 1, 1),
    Sketcher.Constraint("Tangent", 1, 2, 2, 1),
    Sketcher.Constraint("Tangent", 2, 2, 3, 1),
    Sketcher.Constraint("Tangent", 3, 2, 4, 1),
    Sketcher.Constraint("Tangent", 4, 2, 5, 1),
    Sketcher.Constraint("Tangent", 5, 2, 6, 1),
    Sketcher.Constraint("Tangent", 6, 2, 7, 1),
    Sketcher.Constraint("Tangent", 7, 2, 8, 1),
    Sketcher.Constraint("Tangent", 8, 2, 9, 1),
    Sketcher.Constraint("Tangent", 9, 2, 10, 1),
    Sketcher.Constraint("Tangent", 10, 2, 11, 1),
    Sketcher.Constraint("Tangent", 11, 2, 0, 1),
    Sketcher.Constraint("Vertical", 2),
    Sketcher.Constraint("Vertical", 8),
    Sketcher.Constraint("Equal", 1, 3),
    Sketcher.Constraint("Equal", 3, 5),
    Sketcher.Constraint("Equal", 5, 7),
    Sketcher.Constraint("Equal", 7, 9),
    Sketcher.Constraint("Equal", 9, 11),
    Sketcher.Constraint("Parallel", 0, 6),
    Sketcher.Constraint("Parallel", 4, 10),
    Sketcher.Constraint("Horizontal", 3, 3, 7, 3),
    Sketcher.Constraint("Horizontal", 1, 3, 9, 3),
    Sketcher.Constraint("Horizontal", 4, 2, 5, 2),
    Sketcher.Constraint("Angle", 0, Q("-150 deg")),
    Sketcher.Constraint("Radius", 1, Q("0.1875 in")),
    Sketcher.Constraint("DistanceY", 2, 2, 2, 1, 19.94093),
    Sketcher.Constraint("DistanceY", -1, 1, 11, 3, 52.7971),
    Sketcher.Constraint("Distance", 0, 19.94093),
    Sketcher.Constraint("DistanceX", -1, 1, 5, 3, 269.737409),
])
pocket5 = body.newObject("PartDesign::Pocket", "Pocket004")
pocket5.Profile = sketch6
pocket5.Type = "UpToFirst"

doc.recompute()
